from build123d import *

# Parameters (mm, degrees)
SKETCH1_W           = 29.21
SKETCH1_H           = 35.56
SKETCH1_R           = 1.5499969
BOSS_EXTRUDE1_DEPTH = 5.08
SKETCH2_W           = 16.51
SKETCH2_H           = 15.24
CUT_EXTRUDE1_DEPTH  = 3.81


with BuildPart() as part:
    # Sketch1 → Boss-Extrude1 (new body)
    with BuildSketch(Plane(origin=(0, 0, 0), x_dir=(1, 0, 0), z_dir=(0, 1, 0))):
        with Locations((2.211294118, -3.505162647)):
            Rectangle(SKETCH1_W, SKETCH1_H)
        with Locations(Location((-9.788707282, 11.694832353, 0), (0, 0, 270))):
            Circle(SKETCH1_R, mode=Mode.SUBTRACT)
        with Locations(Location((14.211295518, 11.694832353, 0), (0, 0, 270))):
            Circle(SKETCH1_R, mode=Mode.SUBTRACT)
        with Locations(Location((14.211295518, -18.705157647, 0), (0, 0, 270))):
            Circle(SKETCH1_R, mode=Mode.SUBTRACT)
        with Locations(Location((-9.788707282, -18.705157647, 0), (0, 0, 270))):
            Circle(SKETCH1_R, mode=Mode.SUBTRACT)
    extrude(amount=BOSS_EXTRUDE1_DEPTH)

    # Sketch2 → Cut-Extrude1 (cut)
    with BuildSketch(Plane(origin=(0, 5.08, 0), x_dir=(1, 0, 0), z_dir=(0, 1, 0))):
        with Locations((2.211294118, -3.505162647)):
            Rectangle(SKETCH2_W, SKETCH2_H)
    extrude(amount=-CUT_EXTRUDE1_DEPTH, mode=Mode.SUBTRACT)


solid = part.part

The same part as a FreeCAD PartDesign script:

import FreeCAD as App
import Part
import Sketcher
from FreeCAD import Vector
Q = App.Units.Quantity


def add_polygon(sketch, points):
    """Adds a closed chain of lines whose ends are joined by coincident constraints."""
    first, n = sketch.GeometryCount, len(points)
    for a, b in zip(points, points[1:] + points[:1]):
        sketch.addGeometry(Part.LineSegment(App.Vector(*a, 0), App.Vector(*b, 0)), False)
    for i in range(n):
        sketch.addConstraint(Sketcher.Constraint("Coincident", first + i, 2, first + (i + 1) % n, 1))

doc = App.newDocument("Part")
body = doc.addObject("PartDesign::Body", "Body")

sketch1 = doc.addObject("Sketcher::SketchObject", "Sketch")
body.addObject(sketch1)
sketch1.AttachmentSupport = (doc.XZ_Plane, [""])
sketch1.MapMode = "FlatFace"
add_polygon(sketch1, [(-12.4, -14.3), (-12.4, 21.3), (16.8, 21.3), (16.8, -14.3)])
sketch1.addGeometry(Part.Circle(Vector(-9.8, 18.7, 0), Vector(0, 0, 1), 1.5), False)
sketch1.addGeometry(Part.Circle(Vector(14.2, 18.7, 0), Vector(0, 0, 1), 1.5), False)
sketch1.addGeometry(Part.Circle(Vector(-9.8, -11.7, 0), Vector(0, 0, 1), 1.5), False)
sketch1.addGeometry(Part.Circle(Vector(14.2, -11.7, 0), Vector(0, 0, 1), 1.5), False)
sketch1.addConstraint([
    Sketcher.Constraint("Vertical", 0),
    Sketcher.Constraint("Horizontal", 1),
    Sketcher.Constraint("Vertical", 2),
    Sketcher.Constraint("Horizontal", 3),
    Sketcher.Constraint("Equal", 4, 5),
    Sketcher.Constraint("Equal", 5, 6),
    Sketcher.Constraint("Equal", 6, 7),
    Sketcher.Constraint("Horizontal", 4, 3, 5, 3),
    Sketcher.Constraint("Horizontal", 6, 3, 7, 3),
    Sketcher.Constraint("Vertical", 4, 3, 6, 3),
    Sketcher.Constraint("Vertical", 5, 3, 7, 3),
    Sketcher.Constraint("DistanceY", 0, 1, 0, 2, Q("1.4 in")),
    Sketcher.Constraint("DistanceX", 1, 1, 1, 2, Q("1.15 in")),
    Sketcher.Constraint("Diameter", 4, Q("3.099994 mm")),
    Sketcher.Constraint("DistanceX", -1, 1, 5, 3, Q("0.5594998 in")),
    Sketcher.Constraint("DistanceX", 0, 2, 4, 3, Q("2.604999 mm")),
    Sketcher.Constraint("DistanceX", 0, 2, 5, 3, Q("26.605001 mm")),
    Sketcher.Constraint("DistanceY", 6, 3, 4, 3, Q("30.39999 mm")),
    Sketcher.Constraint("DistanceY", -1, 1, 4, 3, Q("18.705158 mm")),
    Sketcher.Constraint("DistanceY", -1, 1, 0, 2, Q("21.285163 mm")),
])
pad1 = doc.addObject("PartDesign::Pad", "Pad")
body.addObject(pad1)
pad1.Profile = sketch1
pad1.Length = Q("0.2 in")
pad1.Reversed = True

sketch2 = doc.addObject("Sketcher::SketchObject", "Sketch001")
body.addObject(sketch2)
sketch2.AttachmentSupport = (doc.XZ_Plane, [""])
sketch2.MapMode = "FlatFace"
sketch2.AttachmentOffset = App.Placement(Vector(0, 0, -0.2 * 25.4), App.Rotation())
add_polygon(sketch2, [(-6, -4), (-6, 11), (10, 11), (10, -4)])
sketch2.addConstraint([
    Sketcher.Constraint("Vertical", 0),
    Sketcher.Constraint("Horizontal", 1),
    Sketcher.Constraint("Vertical", 2),
    Sketcher.Constraint("Horizontal", 3),
    Sketcher.Constraint("DistanceY", 0, 1, 0, 2, Q("0.6 in")),
    Sketcher.Constraint("DistanceX", 1, 1, 1, 2, Q("0.65 in")),
    Sketcher.Constraint("DistanceX", 0, 2, -1, 1, Q("6.043706 mm")),
    Sketcher.Constraint("DistanceY", -1, 1, 0, 2, Q("11.125163 mm")),
])
pocket1 = doc.addObject("PartDesign::Pocket", "Pocket")
body.addObject(pocket1)
pocket1.Profile = sketch2
pocket1.Length = Q("0.15 in")
pocket1.Reversed = True

doc.recompute()
